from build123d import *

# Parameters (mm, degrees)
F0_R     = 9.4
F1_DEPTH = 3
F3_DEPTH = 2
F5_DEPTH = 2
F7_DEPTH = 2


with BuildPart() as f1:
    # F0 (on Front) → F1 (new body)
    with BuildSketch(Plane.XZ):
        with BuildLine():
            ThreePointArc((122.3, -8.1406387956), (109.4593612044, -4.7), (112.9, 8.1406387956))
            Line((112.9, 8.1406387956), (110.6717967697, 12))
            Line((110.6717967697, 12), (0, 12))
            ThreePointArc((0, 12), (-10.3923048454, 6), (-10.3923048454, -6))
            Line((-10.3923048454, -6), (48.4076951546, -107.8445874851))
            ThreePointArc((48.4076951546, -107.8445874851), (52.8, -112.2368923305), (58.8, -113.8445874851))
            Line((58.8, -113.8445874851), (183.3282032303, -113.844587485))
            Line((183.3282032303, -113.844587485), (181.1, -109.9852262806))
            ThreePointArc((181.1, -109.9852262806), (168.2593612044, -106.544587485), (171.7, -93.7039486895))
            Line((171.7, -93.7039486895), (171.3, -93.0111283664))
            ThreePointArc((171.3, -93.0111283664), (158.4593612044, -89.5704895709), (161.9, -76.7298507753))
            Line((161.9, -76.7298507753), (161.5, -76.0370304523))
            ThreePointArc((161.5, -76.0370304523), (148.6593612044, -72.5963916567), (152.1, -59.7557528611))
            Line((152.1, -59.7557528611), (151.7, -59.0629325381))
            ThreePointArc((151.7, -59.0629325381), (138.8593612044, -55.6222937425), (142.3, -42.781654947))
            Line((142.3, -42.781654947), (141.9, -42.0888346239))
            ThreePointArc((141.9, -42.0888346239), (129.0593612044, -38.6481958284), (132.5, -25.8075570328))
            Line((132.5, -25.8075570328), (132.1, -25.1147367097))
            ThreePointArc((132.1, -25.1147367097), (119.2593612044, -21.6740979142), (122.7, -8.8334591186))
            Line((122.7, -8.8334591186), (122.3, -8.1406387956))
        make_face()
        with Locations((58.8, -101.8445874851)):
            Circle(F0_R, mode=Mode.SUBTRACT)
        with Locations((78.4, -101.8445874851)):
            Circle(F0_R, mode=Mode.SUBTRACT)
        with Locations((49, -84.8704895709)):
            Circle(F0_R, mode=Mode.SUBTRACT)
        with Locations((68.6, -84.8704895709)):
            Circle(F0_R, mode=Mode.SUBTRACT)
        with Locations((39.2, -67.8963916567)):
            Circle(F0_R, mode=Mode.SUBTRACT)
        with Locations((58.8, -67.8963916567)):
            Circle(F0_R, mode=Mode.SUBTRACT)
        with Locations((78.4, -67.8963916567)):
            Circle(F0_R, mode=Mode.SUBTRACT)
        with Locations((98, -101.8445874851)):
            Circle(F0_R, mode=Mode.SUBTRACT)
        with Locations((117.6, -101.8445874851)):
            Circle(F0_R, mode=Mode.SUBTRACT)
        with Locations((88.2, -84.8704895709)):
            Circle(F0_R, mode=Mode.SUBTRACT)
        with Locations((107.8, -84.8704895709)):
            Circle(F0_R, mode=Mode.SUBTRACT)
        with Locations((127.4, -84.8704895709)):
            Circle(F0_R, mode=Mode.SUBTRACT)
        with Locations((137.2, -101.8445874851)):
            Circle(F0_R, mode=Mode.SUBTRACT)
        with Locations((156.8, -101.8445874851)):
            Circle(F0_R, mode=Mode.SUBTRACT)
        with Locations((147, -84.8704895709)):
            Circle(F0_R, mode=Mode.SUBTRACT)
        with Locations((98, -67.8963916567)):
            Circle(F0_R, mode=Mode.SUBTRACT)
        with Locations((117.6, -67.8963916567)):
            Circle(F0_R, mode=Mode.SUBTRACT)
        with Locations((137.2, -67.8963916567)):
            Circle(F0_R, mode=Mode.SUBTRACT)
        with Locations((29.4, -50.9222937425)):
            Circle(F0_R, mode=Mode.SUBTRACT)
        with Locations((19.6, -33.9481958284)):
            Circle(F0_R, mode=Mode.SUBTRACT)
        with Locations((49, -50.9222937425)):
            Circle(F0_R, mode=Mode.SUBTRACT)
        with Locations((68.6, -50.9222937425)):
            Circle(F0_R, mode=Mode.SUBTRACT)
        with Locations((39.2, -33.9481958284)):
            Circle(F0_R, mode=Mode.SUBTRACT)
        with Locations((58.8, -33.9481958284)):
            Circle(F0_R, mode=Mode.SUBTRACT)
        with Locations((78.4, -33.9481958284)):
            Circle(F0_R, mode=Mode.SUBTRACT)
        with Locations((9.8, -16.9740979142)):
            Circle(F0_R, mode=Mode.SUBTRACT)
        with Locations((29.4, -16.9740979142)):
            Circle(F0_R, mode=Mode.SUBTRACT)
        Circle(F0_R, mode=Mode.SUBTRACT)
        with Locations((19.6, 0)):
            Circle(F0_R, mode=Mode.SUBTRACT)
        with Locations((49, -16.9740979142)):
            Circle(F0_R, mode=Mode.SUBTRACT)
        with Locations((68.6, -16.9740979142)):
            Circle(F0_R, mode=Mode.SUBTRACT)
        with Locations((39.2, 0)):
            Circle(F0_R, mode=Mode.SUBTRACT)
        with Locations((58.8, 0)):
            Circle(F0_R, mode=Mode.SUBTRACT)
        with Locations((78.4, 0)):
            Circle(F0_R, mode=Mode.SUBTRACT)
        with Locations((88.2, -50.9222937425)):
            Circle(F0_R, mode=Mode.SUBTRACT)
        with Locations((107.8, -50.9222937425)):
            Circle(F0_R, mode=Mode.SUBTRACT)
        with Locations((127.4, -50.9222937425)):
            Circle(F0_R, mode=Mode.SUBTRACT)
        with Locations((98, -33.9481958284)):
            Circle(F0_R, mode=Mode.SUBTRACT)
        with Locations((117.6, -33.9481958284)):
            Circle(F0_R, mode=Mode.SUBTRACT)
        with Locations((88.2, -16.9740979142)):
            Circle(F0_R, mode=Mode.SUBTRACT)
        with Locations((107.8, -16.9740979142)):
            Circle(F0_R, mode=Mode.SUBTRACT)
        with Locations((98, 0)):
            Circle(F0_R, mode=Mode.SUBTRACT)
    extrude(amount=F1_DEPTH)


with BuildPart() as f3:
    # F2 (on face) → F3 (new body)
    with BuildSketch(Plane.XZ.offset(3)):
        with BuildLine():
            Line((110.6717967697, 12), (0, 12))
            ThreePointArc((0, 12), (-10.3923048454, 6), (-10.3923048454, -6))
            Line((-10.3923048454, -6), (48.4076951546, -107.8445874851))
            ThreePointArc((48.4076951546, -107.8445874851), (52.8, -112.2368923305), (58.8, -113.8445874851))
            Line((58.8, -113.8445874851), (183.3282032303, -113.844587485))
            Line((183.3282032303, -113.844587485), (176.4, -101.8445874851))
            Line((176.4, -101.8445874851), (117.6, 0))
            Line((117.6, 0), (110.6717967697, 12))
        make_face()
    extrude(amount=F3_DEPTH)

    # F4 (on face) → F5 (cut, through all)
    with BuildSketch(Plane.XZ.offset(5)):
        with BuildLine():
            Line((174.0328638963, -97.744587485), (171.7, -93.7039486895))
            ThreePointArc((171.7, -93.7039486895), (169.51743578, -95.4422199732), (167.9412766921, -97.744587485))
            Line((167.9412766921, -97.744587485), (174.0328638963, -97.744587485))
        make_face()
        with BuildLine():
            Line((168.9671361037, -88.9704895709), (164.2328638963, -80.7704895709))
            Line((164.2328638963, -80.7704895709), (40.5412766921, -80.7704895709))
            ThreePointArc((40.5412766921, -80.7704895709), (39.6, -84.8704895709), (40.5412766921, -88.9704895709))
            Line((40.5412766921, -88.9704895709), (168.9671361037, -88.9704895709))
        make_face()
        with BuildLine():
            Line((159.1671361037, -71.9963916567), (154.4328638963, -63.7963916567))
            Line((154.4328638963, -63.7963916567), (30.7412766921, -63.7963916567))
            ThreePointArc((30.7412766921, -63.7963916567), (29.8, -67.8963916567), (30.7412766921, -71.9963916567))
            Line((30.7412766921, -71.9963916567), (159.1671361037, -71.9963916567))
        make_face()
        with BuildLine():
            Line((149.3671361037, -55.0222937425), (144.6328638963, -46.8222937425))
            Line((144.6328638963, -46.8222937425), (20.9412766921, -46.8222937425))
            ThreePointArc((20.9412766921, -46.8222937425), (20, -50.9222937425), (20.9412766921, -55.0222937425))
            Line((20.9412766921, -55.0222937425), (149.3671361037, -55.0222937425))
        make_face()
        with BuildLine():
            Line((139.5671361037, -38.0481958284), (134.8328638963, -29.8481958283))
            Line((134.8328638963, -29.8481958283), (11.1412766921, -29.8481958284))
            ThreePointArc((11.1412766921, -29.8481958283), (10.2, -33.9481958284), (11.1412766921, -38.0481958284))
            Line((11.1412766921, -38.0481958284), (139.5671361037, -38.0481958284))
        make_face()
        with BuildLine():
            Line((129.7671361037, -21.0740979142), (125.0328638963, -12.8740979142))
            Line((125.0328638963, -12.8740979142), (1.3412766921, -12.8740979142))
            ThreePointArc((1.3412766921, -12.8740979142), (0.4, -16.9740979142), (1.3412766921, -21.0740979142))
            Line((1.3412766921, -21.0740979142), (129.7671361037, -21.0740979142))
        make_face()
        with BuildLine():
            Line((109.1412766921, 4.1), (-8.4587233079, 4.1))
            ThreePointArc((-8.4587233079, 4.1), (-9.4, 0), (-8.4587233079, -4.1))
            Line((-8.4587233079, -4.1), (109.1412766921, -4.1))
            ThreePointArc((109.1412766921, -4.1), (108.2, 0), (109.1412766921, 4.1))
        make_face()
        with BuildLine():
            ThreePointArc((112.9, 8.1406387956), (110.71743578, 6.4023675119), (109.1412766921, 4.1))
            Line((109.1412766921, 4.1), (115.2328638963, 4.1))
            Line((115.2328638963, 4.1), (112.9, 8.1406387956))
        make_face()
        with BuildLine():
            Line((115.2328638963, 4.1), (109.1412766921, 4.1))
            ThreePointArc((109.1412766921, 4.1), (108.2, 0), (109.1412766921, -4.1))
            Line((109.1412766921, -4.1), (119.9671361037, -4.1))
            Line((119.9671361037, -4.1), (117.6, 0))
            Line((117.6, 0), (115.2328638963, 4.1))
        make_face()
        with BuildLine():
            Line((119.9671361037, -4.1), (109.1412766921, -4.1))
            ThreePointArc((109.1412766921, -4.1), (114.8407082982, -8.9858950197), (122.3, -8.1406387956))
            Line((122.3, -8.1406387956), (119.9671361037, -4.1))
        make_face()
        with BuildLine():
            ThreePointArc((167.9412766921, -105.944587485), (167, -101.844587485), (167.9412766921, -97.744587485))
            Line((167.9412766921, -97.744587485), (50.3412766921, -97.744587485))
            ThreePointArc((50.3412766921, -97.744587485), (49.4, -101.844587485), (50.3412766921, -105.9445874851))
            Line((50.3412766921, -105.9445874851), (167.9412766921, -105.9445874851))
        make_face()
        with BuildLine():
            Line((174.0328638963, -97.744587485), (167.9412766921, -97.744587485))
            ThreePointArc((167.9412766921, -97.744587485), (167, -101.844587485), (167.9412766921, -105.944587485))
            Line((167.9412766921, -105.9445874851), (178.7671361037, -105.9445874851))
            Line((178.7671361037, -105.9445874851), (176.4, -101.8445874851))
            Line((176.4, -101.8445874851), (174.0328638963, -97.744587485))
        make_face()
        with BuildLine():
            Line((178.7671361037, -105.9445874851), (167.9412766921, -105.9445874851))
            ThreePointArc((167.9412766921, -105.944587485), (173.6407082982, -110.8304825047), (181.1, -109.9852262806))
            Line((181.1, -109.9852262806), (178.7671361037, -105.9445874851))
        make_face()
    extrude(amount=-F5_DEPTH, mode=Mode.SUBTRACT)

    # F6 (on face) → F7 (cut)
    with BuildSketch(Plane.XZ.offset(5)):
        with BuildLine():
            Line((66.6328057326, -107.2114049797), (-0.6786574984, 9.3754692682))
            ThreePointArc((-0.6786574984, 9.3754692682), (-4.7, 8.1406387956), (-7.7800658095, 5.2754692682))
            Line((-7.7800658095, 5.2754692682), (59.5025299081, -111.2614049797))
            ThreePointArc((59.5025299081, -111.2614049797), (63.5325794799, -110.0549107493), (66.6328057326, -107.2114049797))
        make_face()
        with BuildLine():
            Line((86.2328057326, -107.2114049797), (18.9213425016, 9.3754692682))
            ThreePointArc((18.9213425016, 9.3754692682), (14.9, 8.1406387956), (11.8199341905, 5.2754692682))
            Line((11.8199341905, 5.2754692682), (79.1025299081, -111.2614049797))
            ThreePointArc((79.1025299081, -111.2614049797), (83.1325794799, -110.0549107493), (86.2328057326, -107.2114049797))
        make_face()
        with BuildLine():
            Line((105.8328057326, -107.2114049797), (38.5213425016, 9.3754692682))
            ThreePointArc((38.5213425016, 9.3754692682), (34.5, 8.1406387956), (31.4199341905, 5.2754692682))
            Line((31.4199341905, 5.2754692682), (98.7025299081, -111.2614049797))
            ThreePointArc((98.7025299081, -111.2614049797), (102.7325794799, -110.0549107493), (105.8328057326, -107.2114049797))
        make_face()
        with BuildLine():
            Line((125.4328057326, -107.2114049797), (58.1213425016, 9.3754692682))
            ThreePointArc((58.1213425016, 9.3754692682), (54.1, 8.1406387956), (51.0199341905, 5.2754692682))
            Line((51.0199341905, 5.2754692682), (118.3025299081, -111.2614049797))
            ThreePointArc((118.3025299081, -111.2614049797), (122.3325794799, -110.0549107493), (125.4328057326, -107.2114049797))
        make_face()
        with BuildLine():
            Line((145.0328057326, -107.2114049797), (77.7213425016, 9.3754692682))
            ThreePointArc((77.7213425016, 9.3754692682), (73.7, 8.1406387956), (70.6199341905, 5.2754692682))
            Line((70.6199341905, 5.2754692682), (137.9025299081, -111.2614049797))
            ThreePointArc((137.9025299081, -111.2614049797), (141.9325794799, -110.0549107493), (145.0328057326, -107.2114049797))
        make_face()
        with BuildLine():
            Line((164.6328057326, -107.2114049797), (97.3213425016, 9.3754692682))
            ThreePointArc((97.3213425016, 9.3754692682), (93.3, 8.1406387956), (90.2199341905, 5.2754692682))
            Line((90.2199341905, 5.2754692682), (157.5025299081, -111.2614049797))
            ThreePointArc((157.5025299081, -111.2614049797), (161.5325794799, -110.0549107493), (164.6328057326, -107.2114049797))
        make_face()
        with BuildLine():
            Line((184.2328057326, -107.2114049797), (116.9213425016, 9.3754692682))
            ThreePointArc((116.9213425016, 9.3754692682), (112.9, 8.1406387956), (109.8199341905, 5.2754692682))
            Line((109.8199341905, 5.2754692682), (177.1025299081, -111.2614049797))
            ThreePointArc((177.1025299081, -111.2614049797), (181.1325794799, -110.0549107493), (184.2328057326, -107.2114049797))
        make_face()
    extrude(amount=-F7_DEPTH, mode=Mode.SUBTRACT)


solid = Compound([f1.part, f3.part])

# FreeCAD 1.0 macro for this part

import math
import FreeCAD as App
import Part
import Sketcher
Q = App.Units.Quantity

doc = App.newDocument("Part")
body = doc.addObject("PartDesign::Body", "Body")

# Sketch on XZ plane
sketch1 = body.newObject("Sketcher::SketchObject", "Sketch")
sketch1.AttachmentSupport = (doc.getObject("XZ_Plane"), [""])
sketch1.MapMode = "FlatFace"
sketch1.addGeometry([
    Part.ArcOfCircle(Part.Circle(App.Vector(117.6, 0, 0), App.Vector(0, 0, 1), 9.4), math.radians(120), math.radians(300)),  # 0
    Part.LineSegment(App.Vector(112.9, 8.1, 0), App.Vector(110.7, 12, 0)),  # 1
    Part.LineSegment(App.Vector(110.7, 12, 0), App.Vector(0, 12, 0)),  # 2
    Part.ArcOfCircle(Part.Circle(App.Vector(0, 0, 0), App.Vector(0, 0, 1), 12), math.radians(90), math.radians(210)),  # 3
    Part.LineSegment(App.Vector(-10.4, -6, 0), App.Vector(48.4, -107.8, 0)),  # 4
    Part.ArcOfCircle(Part.Circle(App.Vector(58.8, -101.8, 0), App.Vector(0, 0, 1), 12), math.radians(-150), math.radians(-90)),  # 5
    Part.LineSegment(App.Vector(58.8, -113.8, 0), App.Vector(183.3, -113.8, 0)),  # 6
    Part.LineSegment(App.Vector(183.3, -113.8, 0), App.Vector(181.1, -110, 0)),  # 7
    Part.ArcOfCircle(Part.Circle(App.Vector(176.4, -101.8, 0), App.Vector(0, 0, 1), 9.4), math.radians(120), math.radians(300)),  # 8
    Part.LineSegment(App.Vector(171.7, -93.7, 0), App.Vector(171.3, -93, 0)),  # 9
    Part.ArcOfCircle(Part.Circle(App.Vector(166.6, -84.9, 0), App.Vector(0, 0, 1), 9.4), math.radians(120), math.radians(300)),  # 10
    Part.LineSegment(App.Vector(161.9, -76.7, 0), App.Vector(161.5, -76, 0)),  # 11
    Part.ArcOfCircle(Part.Circle(App.Vector(156.8, -67.9, 0), App.Vector(0, 0, 1), 9.4), math.radians(120), math.radians(300)),  # 12
    Part.LineSegment(App.Vector(152.1, -59.8, 0), App.Vector(151.7, -59.1, 0)),  # 13
    Part.ArcOfCircle(Part.Circle(App.Vector(147, -50.9, 0), App.Vector(0, 0, 1), 9.4), math.radians(120), math.radians(300)),  # 14
    Part.LineSegment(App.Vector(142.3, -42.8, 0), App.Vector(141.9, -42.1, 0)),  # 15
    Part.ArcOfCircle(Part.Circle(App.Vector(137.2, -33.9, 0), App.Vector(0, 0, 1), 9.4), math.radians(120), math.radians(300)),  # 16
    Part.LineSegment(App.Vector(132.5, -25.8, 0), App.Vector(132.1, -25.1, 0)),  # 17
    Part.ArcOfCircle(Part.Circle(App.Vector(127.4, -17, 0), App.Vector(0, 0, 1), 9.4), math.radians(120), math.radians(300)),  # 18
    Part.LineSegment(App.Vector(122.7, -8.8, 0), App.Vector(122.3, -8.1, 0)),  # 19
    Part.Circle(App.Vector(58.8, -101.8, 0), App.Vector(0, 0, 1), 9.4),  # 20
    Part.Circle(App.Vector(49, -84.9, 0), App.Vector(0, 0, 1), 9.4),  # 21
    Part.Circle(App.Vector(68.6, -84.9, 0), App.Vector(0, 0, 1), 9.4),  # 22
    Part.Circle(App.Vector(39.2, -67.9, 0), App.Vector(0, 0, 1), 9.4),  # 23
    Part.Circle(App.Vector(58.8, -67.9, 0), App.Vector(0, 0, 1), 9.4),  # 24
    Part.Circle(App.Vector(78.4, -101.8, 0), App.Vector(0, 0, 1), 9.4),  # 25
    Part.Circle(App.Vector(98, -101.8, 0), App.Vector(0, 0, 1), 9.4),  # 26
    Part.Circle(App.Vector(117.6, -101.8, 0), App.Vector(0, 0, 1), 9.4),  # 27
    Part.Circle(App.Vector(88.2, -84.9, 0), App.Vector(0, 0, 1), 9.4),  # 28
    Part.Circle(App.Vector(107.8, -84.9, 0), App.Vector(0, 0, 1), 9.4),  # 29
    Part.Circle(App.Vector(137.2, -101.8, 0), App.Vector(0, 0, 1), 9.4),  # 30
    Part.Circle(App.Vector(156.8, -101.8, 0), App.Vector(0, 0, 1), 9.4),  # 31
    Part.Circle(App.Vector(127.4, -84.9, 0), App.Vector(0, 0, 1), 9.4),  # 32
    Part.Circle(App.Vector(147, -84.9, 0), App.Vector(0, 0, 1), 9.4),  # 33
    Part.Circle(App.Vector(78.4, -67.9, 0), App.Vector(0, 0, 1), 9.4),  # 34
    Part.Circle(App.Vector(98, -67.9, 0), App.Vector(0, 0, 1), 9.4),  # 35
    Part.Circle(App.Vector(117.6, -67.9, 0), App.Vector(0, 0, 1), 9.4),  # 36
    Part.Circle(App.Vector(137.2, -67.9, 0), App.Vector(0, 0, 1), 9.4),  # 37
    Part.Circle(App.Vector(29.4, -50.9, 0), App.Vector(0, 0, 1), 9.4),  # 38
    Part.Circle(App.Vector(19.6, -33.9, 0), App.Vector(0, 0, 1), 9.4),  # 39
    Part.Circle(App.Vector(49, -50.9, 0), App.Vector(0, 0, 1), 9.4),  # 40
    Part.Circle(App.Vector(68.6, -50.9, 0), App.Vector(0, 0, 1), 9.4),  # 41
    Part.Circle(App.Vector(39.2, -33.9, 0), App.Vector(0, 0, 1), 9.4),  # 42
    Part.Circle(App.Vector(58.8, -33.9, 0), App.Vector(0, 0, 1), 9.4),  # 43
    Part.Circle(App.Vector(9.8, -17, 0), App.Vector(0, 0, 1), 9.4),  # 44
    Part.Circle(App.Vector(29.4, -17, 0), App.Vector(0, 0, 1), 9.4),  # 45
    Part.Circle(App.Vector(0, 0, 0), App.Vector(0, 0, 1), 9.4),  # 46
    Part.Circle(App.Vector(19.6, 0, 0), App.Vector(0, 0, 1), 9.4),  # 47
    Part.Circle(App.Vector(49, -17, 0), App.Vector(0, 0, 1), 9.4),  # 48
    Part.Circle(App.Vector(68.6, -17, 0), App.Vector(0, 0, 1), 9.4),  # 49
    Part.Circle(App.Vector(39.2, 0, 0), App.Vector(0, 0, 1), 9.4),  # 50
    Part.Circle(App.Vector(58.8, 0, 0), App.Vector(0, 0, 1), 9.4),  # 51
    Part.Circle(App.Vector(88.2, -50.9, 0), App.Vector(0, 0, 1), 9.4),  # 52
    Part.Circle(App.Vector(107.8, -50.9, 0), App.Vector(0, 0, 1), 9.4),  # 53
    Part.Circle(App.Vector(78.4, -33.9, 0), App.Vector(0, 0, 1), 9.4),  # 54
    Part.Circle(App.Vector(98, -33.9, 0), App.Vector(0, 0, 1), 9.4),  # 55
    Part.Circle(App.Vector(117.6, -33.9, 0), App.Vector(0, 0, 1), 9.4),  # 56
    Part.Circle(App.Vector(127.4, -50.9, 0), App.Vector(0, 0, 1), 9.4),  # 57
    Part.Circle(App.Vector(88.2, -17, 0), App.Vector(0, 0, 1), 9.4),  # 58
    Part.Circle(App.Vector(107.8, -17, 0), App.Vector(0, 0, 1), 9.4),  # 59
    Part.Circle(App.Vector(78.4, 0, 0), App.Vector(0, 0, 1), 9.4),  # 60
    Part.Circle(App.Vector(98, 0, 0), App.Vector(0, 0, 1), 9.4),  # 61
], False)
sketch1.addConstraint([
    Sketcher.Constraint("Coincident", 0, 1, 1, 1),
    Sketcher.Constraint("Coincident", 1, 2, 2, 1),
    Sketcher.Constraint("Tangent", 2, 2, 3, 1),
    Sketcher.Constraint("Tangent", 3, 2, 4, 1),
    Sketcher.Constraint("Tangent", 4, 2, 5, 1),
    Sketcher.Constraint("Tangent", 5, 2, 6, 1),
    Sketcher.Constraint("Coincident", 6, 2, 7, 1),
    Sketcher.Constraint("Coincident", 7, 2, 8, 2),
    Sketcher.Constraint("Coincident", 8, 1, 9, 1),
    Sketcher.Constraint("Coincident", 9, 2, 10, 2),
    Sketcher.Constraint("Coincident", 10, 1, 11, 1),
    Sketcher.Constraint("Coincident", 11, 2, 12, 2),
    Sketcher.Constraint("Coincident", 12, 1, 13, 1),
    Sketcher.Constraint("Coincident", 13, 2, 14, 2),
    Sketcher.Constraint("Coincident", 14, 1, 15, 1),
    Sketcher.Constraint("Coincident", 15, 2, 16, 2),
    Sketcher.Constraint("Coincident", 16, 1, 17, 1),
    Sketcher.Constraint("Coincident", 17, 2, 18, 2),
    Sketcher.Constraint("Coincident", 18, 1, 19, 1),
    Sketcher.Constraint("Coincident", 19, 2, 0, 2),
    Sketcher.Constraint("Horizontal", 2),
    Sketcher.Constraint("Horizontal", 6),
    Sketcher.Constraint("Coincident", 3, 3, -1, 1),
    Sketcher.Constraint("Coincident", 46, 3, -1, 1),
    Sketcher.Constraint("Coincident", 20, 3, 5, 3),
    Sketcher.Constraint("Equal", 3, 5),
    Sketcher.Constraint("Equal", 0, 8),
    Sketcher.Constraint("Equal", 8, 10),
    Sketcher.Constraint("Equal", 10, 12),
    Sketcher.Constraint("Equal", 12, 14),
    Sketcher.Constraint("Equal", 14, 16),
    Sketcher.Constraint("Equal", 16, 18),
    Sketcher.Constraint("Equal", 18, 20),
    Sketcher.Constraint("Equal", 20, 21),
    Sketcher.Constraint("Equal", 21, 22),
    Sketcher.Constraint("Equal", 22, 23),
    Sketcher.Constraint("Equal", 23, 24),
    Sketcher.Constraint("Equal", 24, 25),
    Sketcher.Constraint("Equal", 25, 26),
    Sketcher.Constraint("Equal", 26, 27),
    Sketcher.Constraint("Equal", 27, 28),
    Sketcher.Constraint("Equal", 28, 29),
    Sketcher.Constraint("Equal", 29, 30),
    Sketcher.Constraint("Equal", 30, 31),
    Sketcher.Constraint("Equal", 31, 32),
    Sketcher.Constraint("Equal", 32, 33),
    Sketcher.Constraint("Equal", 33, 34),
    Sketcher.Constraint("Equal", 34, 35),
    Sketcher.Constraint("Equal", 35, 36),
    Sketcher.Constraint("Equal", 36, 37),
    Sketcher.Constraint("Equal", 37, 38),
    Sketcher.Constraint("Equal", 38, 39),
    Sketcher.Constraint("Equal", 39, 40),
    Sketcher.Constraint("Equal", 40, 41),
    Sketcher.Constraint("Equal", 41, 42),
    Sketcher.Constraint("Equal", 42, 43),
    Sketcher.Constraint("Equal", 43, 44),
    Sketcher.Constraint("Equal", 44, 45),
    Sketcher.Constraint("Equal", 45, 46),
    Sketcher.Constraint("Equal", 46, 47),
    Sketcher.Constraint("Equal", 47, 48),
    Sketcher.Constraint("Equal", 48, 49),
    Sketcher.Constraint("Equal", 49, 50),
    Sketcher.Constraint("Equal", 50, 51),
    Sketcher.Constraint("Equal", 51, 52),
    Sketcher.Constraint("Equal", 52, 53),
    Sketcher.Constraint("Equal", 53, 54),
    Sketcher.Constraint("Equal", 54, 55),
    Sketcher.Constraint("Equal", 55, 56),
    Sketcher.Constraint("Equal", 56, 57),
    Sketcher.Constraint("Equal", 57, 58),
    Sketcher.Constraint("Equal", 58, 59),
    Sketcher.Constraint("Equal", 59, 60),
    Sketcher.Constraint("Equal", 60, 61),
    Sketcher.Constraint("PointOnObject", 0, 3, -1),
    Sketcher.Constraint("PointOnObject", 47, 3, -1),
    Sketcher.Constraint("PointOnObject", 50, 3, -1),
    Sketcher.Constraint("PointOnObject", 51, 3, -1),
    Sketcher.Constraint("PointOnObject", 60, 3, -1),
    Sketcher.Constraint("PointOnObject", 61, 3, -1),
    Sketcher.Constraint("Parallel", 1, 4),
    Sketcher.Constraint("Parallel", 4, 7),
    Sketcher.Constraint("Parallel", 7, 9),
    Sketcher.Constraint("Parallel", 9, 11),
    Sketcher.Constraint("Parallel", 11, 13),
    Sketcher.Constraint("Parallel", 13, 15),
    Sketcher.Constraint("Parallel", 15, 17),
    Sketcher.Constraint("Parallel", 17, 19),
    Sketcher.Constraint("Horizontal", 5, 3, 8, 3),
    Sketcher.Constraint("Horizontal", 10, 3, 21, 3),
    Sketcher.Constraint("Horizontal", 21, 3, 22, 3),
    Sketcher.Constraint("Horizontal", 12, 3, 23, 3),
    Sketcher.Constraint("Horizontal", 23, 3, 24, 3),
    Sketcher.Constraint("Horizontal", 20, 3, 25, 3),
    Sketcher.Constraint("Horizontal", 25, 3, 26, 3),
    Sketcher.Constraint("Horizontal", 26, 3, 27, 3),
    Sketcher.Constraint("Horizontal", 22, 3, 28, 3),
    Sketcher.Constraint("Horizontal", 28, 3, 29, 3),
    Sketcher.Constraint("Horizontal", 27, 3, 30, 3),
    Sketcher.Constraint("Horizontal", 30, 3, 31, 3),
    Sketcher.Constraint("Horizontal", 29, 3, 32, 3),
    Sketcher.Constraint("Horizontal", 32, 3, 33, 3),
    Sketcher.Constraint("Horizontal", 24, 3, 34, 3),
    Sketcher.Constraint("Horizontal", 34, 3, 35, 3),
    Sketcher.Constraint("Horizontal", 35, 3, 36, 3),
    Sketcher.Constraint("Horizontal", 36, 3, 37, 3),
    Sketcher.Constraint("Horizontal", 14, 3, 38, 3),
    Sketcher.Constraint("Horizontal", 16, 3, 39, 3),
    Sketcher.Constraint("Horizontal", 38, 3, 40, 3),
    Sketcher.Constraint("Horizontal", 40, 3, 41, 3),
    Sketcher.Constraint("Horizontal", 39, 3, 42, 3),
    Sketcher.Constraint("Horizontal", 42, 3, 43, 3),
    Sketcher.Constraint("Horizontal", 18, 3, 44, 3),
    Sketcher.Constraint("Horizontal", 44, 3, 45, 3),
    Sketcher.Constraint("Horizontal", 45, 3, 48, 3),
    Sketcher.Constraint("Horizontal", 48, 3, 49, 3),
    Sketcher.Constraint("Horizontal", 41, 3, 52, 3),
    Sketcher.Constraint("Horizontal", 52, 3, 53, 3),
    Sketcher.Constraint("Horizontal", 43, 3, 54, 3),
    Sketcher.Constraint("Horizontal", 54, 3, 55, 3),
    Sketcher.Constraint("Horizontal", 55, 3, 56, 3),
    Sketcher.Constraint("Horizontal", 53, 3, 57, 3),
    Sketcher.Constraint("Horizontal", 49, 3, 58, 3),
    Sketcher.Constraint("Horizontal", 58, 3, 59, 3),
    Sketcher.Constraint("Vertical", 20, 3, 24, 3),
    Sketcher.Constraint("Vertical", 0, 3, 27, 3),
    Sketcher.Constraint("Vertical", 16, 3, 30, 3),
    Sketcher.Constraint("Vertical", 12, 3, 31, 3),
    Sketcher.Constraint("Vertical", 18, 3, 32, 3),
    Sketcher.Constraint("Vertical", 14, 3, 33, 3),
    Sketcher.Constraint("Vertical", 25, 3, 34, 3),
    Sketcher.Constraint("Vertical", 26, 3, 35, 3),
    Sketcher.Constraint("Vertical", 27, 3, 36, 3),
    Sketcher.Constraint("Vertical", 30, 3, 37, 3),
    Sketcher.Constraint("Vertical", 21, 3, 40, 3),
    Sketcher.Constraint("Vertical", 22, 3, 41, 3),
    Sketcher.Constraint("Vertical", 23, 3, 42, 3),
    Sketcher.Constraint("Vertical", 24, 3, 43, 3),
    Sketcher.Constraint("Vertical", 38, 3, 45, 3),
    Sketcher.Constraint("Vertical", 39, 3, 47, 3),
    Sketcher.Constraint("Vertical", 40, 3, 48, 3),
    Sketcher.Constraint("Vertical", 41, 3, 49, 3),
    Sketcher.Constraint("Vertical", 42, 3, 50, 3),
    Sketcher.Constraint("Vertical", 43, 3, 51, 3),
    Sketcher.Constraint("Vertical", 28, 3, 52, 3),
    Sketcher.Constraint("Vertical", 29, 3, 53, 3),
    Sketcher.Constraint("Vertical", 34, 3, 54, 3),
    Sketcher.Constraint("Vertical", 35, 3, 55, 3),
    Sketcher.Constraint("Vertical", 36, 3, 56, 3),
    Sketcher.Constraint("Vertical", 32, 3, 57, 3),
    Sketcher.Constraint("Vertical", 52, 3, 58, 3),
    Sketcher.Constraint("Vertical", 53, 3, 59, 3),
    Sketcher.Constraint("Vertical", 54, 3, 60, 3),
    Sketcher.Constraint("Vertical", 55, 3, 61, 3),
    Sketcher.Constraint("Equal", 1, 7),
    Sketcher.Constraint("Equal", 9, 11),
    Sketcher.Constraint("Equal", 11, 13),
    Sketcher.Constraint("Equal", 13, 15),
    Sketcher.Constraint("Equal", 15, 17),
    Sketcher.Constraint("Equal", 17, 19),
    Sketcher.Constraint("Radius", 3, 12.0),
    Sketcher.Constraint("Diameter", 20, 18.8),
    Sketcher.Constraint("Angle", 1, Q("120 deg")),
    Sketcher.Constraint("DistanceX", -1, 1, 14, 3, 147.0),
    Sketcher.Constraint("DistanceX", -1, 1, 21, 3, 49.0),
    Sketcher.Constraint("DistanceX", -1, 1, 26, 3, 98.0),
    Sketcher.Constraint("Distance", 4, 117.6),
    Sketcher.Constraint("Distance", 9, 0.8),
    Sketcher.Constraint("DistanceX", -1, 1, 0, 3, 117.6),
    Sketcher.Constraint("DistanceX", -1, 1, 10, 3, 166.6),
    Sketcher.Constraint("DistanceX", -1, 1, 12, 3, 156.8),
    Sketcher.Constraint("DistanceX", -1, 1, 16, 3, 137.2),
    Sketcher.Constraint("DistanceX", -1, 1, 18, 3, 127.4),
    Sketcher.Constraint("DistanceX", -1, 1, 22, 3, 68.6),
    Sketcher.Constraint("DistanceX", -1, 1, 23, 3, 39.2),
    Sketcher.Constraint("DistanceX", -1, 1, 25, 3, 78.4),
    Sketcher.Constraint("DistanceX", -1, 1, 28, 3, 88.2),
    Sketcher.Constraint("DistanceX", -1, 1, 29, 3, 107.8),
    Sketcher.Constraint("DistanceX", -1, 1, 38, 3, 29.4),
    Sketcher.Constraint("DistanceX", -1, 1, 39, 3, 19.6),
    Sketcher.Constraint("DistanceX", -1, 1, 44, 3, 9.8),
    Sketcher.Constraint("DistanceX", -1, 1, 0, 1, 112.9),
    Sketcher.Constraint("DistanceX", -1, 1, 8, 1, 171.7),
    Sketcher.Constraint("DistanceX", -1, 1, 10, 1, 161.9),
    Sketcher.Constraint("DistanceX", -1, 1, 12, 1, 152.1),
    Sketcher.Constraint("DistanceX", -1, 1, 14, 1, 142.3),
    Sketcher.Constraint("DistanceX", -1, 1, 16, 1, 132.5),
    Sketcher.Constraint("DistanceX", -1, 1, 18, 1, 122.7),
])
pad1 = body.newObject("PartDesign::Pad", "Pad")
pad1.Profile = sketch1
pad1.Length = 3
body2 = doc.addObject("PartDesign::Body", "Body001")
body2.AllowCompound = True

# Sketch on XZ plane
sketch2 = body2.newObject("Sketcher::SketchObject", "Sketch001")
sketch2.AttachmentSupport = (doc.getObject("XZ_Plane001"), [""])
sketch2.MapMode = "FlatFace"
sketch2.AttachmentOffset = App.Placement(App.Vector(0, 0, 3), App.Rotation())
sketch2.addGeometry([
    Part.LineSegment(App.Vector(111, 12, 0), App.Vector(0, 12, 0)),  # 0
    Part.ArcOfCircle(Part.Circle(App.Vector(0, 0, 0), App.Vector(0, 0, 1), 12), math.radians(90), math.radians(210)),  # 1
    Part.LineSegment(App.Vector(-10, -6, 0), App.Vector(48, -108, 0)),  # 2
    Part.ArcOfCircle(Part.Circle(App.Vector(59, -102, 0), App.Vector(0, 0, 1), 12), math.radians(-150), math.radians(-90)),  # 3
    Part.LineSegment(App.Vector(59, -114, 0), App.Vector(183, -114, 0)),  # 4
    Part.LineSegment(App.Vector(183, -114, 0), App.Vector(176, -102, 0)),  # 5
    Part.LineSegment(App.Vector(176, -102, 0), App.Vector(118, 0, 0)),  # 6
    Part.LineSegment(App.Vector(118, 0, 0), App.Vector(111, 12, 0)),  # 7
], False)
sketch2.addConstraint([
    Sketcher.Constraint("Tangent", 0, 2, 1, 1),
    Sketcher.Constraint("Tangent", 1, 2, 2, 1),
    Sketcher.Constraint("Tangent", 2, 2, 3, 1),
    Sketcher.Constraint("Tangent", 3, 2, 4, 1),
    Sketcher.Constraint("Coincident", 4, 2, 5, 1),
    Sketcher.Constraint("Coincident", 5, 2, 6, 1),
    Sketcher.Constraint("Coincident", 6, 2, 7, 1),
    Sketcher.Constraint("Coincident", 7, 2, 0, 1),
    Sketcher.Constraint("Horizontal", 0),
    Sketcher.Constraint("Horizontal", 4),
    Sketcher.Constraint("Coincident", 1, 3, -1, 1),
    Sketcher.Constraint("Equal", 1, 3),
    Sketcher.Constraint("PointOnObject", 6, 2, -1),
    Sketcher.Constraint("Parallel", 2, 5),
    Sketcher.Constraint("Parallel", 5, 6),
    Sketcher.Constraint("Parallel", 6, 7),
    Sketcher.Constraint("Horizontal", 3, 3, 5, 2),
    Sketcher.Constraint("Radius", 1, 12.0),
    Sketcher.Constraint("Angle", 2, Q("-60 deg")),
    Sketcher.Constraint("Distance", 2, 117.6),
    Sketcher.Constraint("DistanceX", -1, 1, 5, 2, 176.4),
])
pad2 = body2.newObject("PartDesign::Pad", "Pad001")
pad2.Profile = sketch2
pad2.Length = 2

# Sketch on XZ plane
sketch3 = body2.newObject("Sketcher::SketchObject", "Sketch002")
sketch3.AttachmentSupport = (doc.getObject("XZ_Plane001"), [""])
sketch3.MapMode = "FlatFace"
sketch3.AttachmentOffset = App.Placement(App.Vector(0, 0, 5), App.Rotation())
sketch3.addGeometry([
    Part.LineSegment(App.Vector(174, -97.7, 0), App.Vector(171.7, -93.7, 0)),  # 0
    Part.ArcOfCircle(Part.Circle(App.Vector(176.4, -101.8, 0), App.Vector(0, 0, 1), 9.4), math.radians(120), math.radians(154)),  # 1
    Part.LineSegment(App.Vector(167.9, -97.7, 0), App.Vector(50.3, -97.7, 0)),  # 2
    Part.ArcOfCircle(Part.Circle(App.Vector(58.8, -101.8, 0), App.Vector(0, 0, 1), 9.4), math.radians(154), math.radians(206)),  # 3
    Part.LineSegment(App.Vector(50.3, -105.9, 0), App.Vector(167.9, -105.9, 0)),  # 4
    Part.ArcOfCircle(Part.Circle(App.Vector(176.4, -101.8, 0), App.Vector(0, 0, 1), 9.4), math.radians(-154), math.radians(-60)),  # 5
    Part.LineSegment(App.Vector(181.1, -110, 0), App.Vector(176.4, -101.8, 0)),  # 6
    Part.LineSegment(App.Vector(176.4, -101.8, 0), App.Vector(174, -97.7, 0)),  # 7
    Part.LineSegment(App.Vector(169, -89, 0), App.Vector(164.2, -80.8, 0)),  # 8
    Part.LineSegment(App.Vector(164.2, -80.8, 0), App.Vector(40.5, -80.8, 0)),  # 9
    Part.ArcOfCircle(Part.Circle(App.Vector(49, -84.9, 0), App.Vector(0, 0, 1), 9.4), math.radians(154), math.radians(206)),  # 10
    Part.LineSegment(App.Vector(40.5, -89, 0), App.Vector(169, -89, 0)),  # 11
    Part.LineSegment(App.Vector(159.2, -72, 0), App.Vector(154.4, -63.8, 0)),  # 12
    Part.LineSegment(App.Vector(154.4, -63.8, 0), App.Vector(30.7, -63.8, 0)),  # 13
    Part.ArcOfCircle(Part.Circle(App.Vector(39.2, -67.9, 0), App.Vector(0, 0, 1), 9.4), math.radians(154), math.radians(206)),  # 14
    Part.LineSegment(App.Vector(30.7, -72, 0), App.Vector(159.2, -72, 0)),  # 15
    Part.LineSegment(App.Vector(149.4, -55, 0), App.Vector(144.6, -46.8, 0)),  # 16
    Part.LineSegment(App.Vector(144.6, -46.8, 0), App.Vector(20.9, -46.8, 0)),  # 17
    Part.ArcOfCircle(Part.Circle(App.Vector(29.4, -50.9, 0), App.Vector(0, 0, 1), 9.4), math.radians(154), math.radians(206)),  # 18
    Part.LineSegment(App.Vector(20.9, -55, 0), App.Vector(149.4, -55, 0)),  # 19
    Part.LineSegment(App.Vector(139.6, -38, 0), App.Vector(134.8, -29.8, 0)),  # 20
    Part.LineSegment(App.Vector(134.8, -29.8, 0), App.Vector(11.1, -29.8, 0)),  # 21
    Part.ArcOfCircle(Part.Circle(App.Vector(19.6, -33.9, 0), App.Vector(0, 0, 1), 9.4), math.radians(154), math.radians(206)),  # 22
    Part.LineSegment(App.Vector(11.1, -38, 0), App.Vector(139.6, -38, 0)),  # 23
    Part.LineSegment(App.Vector(129.8, -21.1, 0), App.Vector(125, -12.9, 0)),  # 24
    Part.LineSegment(App.Vector(125, -12.9, 0), App.Vector(1.3, -12.9, 0)),  # 25
    Part.ArcOfCircle(Part.Circle(App.Vector(9.8, -17, 0), App.Vector(0, 0, 1), 9.4), math.radians(154), math.radians(206)),  # 26
    Part.LineSegment(App.Vector(1.3, -21.1, 0), App.Vector(129.8, -21.1, 0)),  # 27
    Part.LineSegment(App.Vector(109.1, 4.1, 0), App.Vector(-8.5, 4.1, 0)),  # 28
    Part.ArcOfCircle(Part.Circle(App.Vector(0, 0, 0), App.Vector(0, 0, 1), 9.4), math.radians(154), math.radians(206)),  # 29
    Part.LineSegment(App.Vector(-8.5, -4.1, 0), App.Vector(109.1, -4.1, 0)),  # 30
    Part.ArcOfCircle(Part.Circle(App.Vector(117.6, 0, 0), App.Vector(0, 0, 1), 9.4), math.radians(-154), math.radians(-60)),  # 31
    Part.LineSegment(App.Vector(122.3, -8.1, 0), App.Vector(120, -4.1, 0)),  # 32
    Part.LineSegment(App.Vector(120, -4.1, 0), App.Vector(115.2, 4.1, 0)),  # 33
    Part.LineSegment(App.Vector(115.2, 4.1, 0), App.Vector(112.9, 8.1, 0)),  # 34
    Part.ArcOfCircle(Part.Circle(App.Vector(117.6, 0, 0), App.Vector(0, 0, 1), 9.4), math.radians(120), math.radians(154)),  # 35
], False)
sketch3.addConstraint([
    Sketcher.Constraint("Coincident", 0, 2, 1, 1),
    Sketcher.Constraint("Coincident", 1, 2, 2, 1),
    Sketcher.Constraint("Coincident", 2, 2, 3, 1),
    Sketcher.Constraint("Coincident", 3, 2, 4, 1),
    Sketcher.Constraint("Coincident", 4, 2, 5, 1),
    Sketcher.Constraint("Coincident", 5, 2, 6, 1),
    Sketcher.Constraint("Coincident", 6, 2, 7, 1),
    Sketcher.Constraint("Coincident", 7, 2, 0, 1),
    Sketcher.Constraint("Coincident", 8, 2, 9, 1),
    Sketcher.Constraint("Coincident", 9, 2, 10, 1),
    Sketcher.Constraint("Coincident", 10, 2, 11, 1),
    Sketcher.Constraint("Coincident", 11, 2, 8, 1),
    Sketcher.Constraint("Coincident", 12, 2, 13, 1),
    Sketcher.Constraint("Coincident", 13, 2, 14, 1),
    Sketcher.Constraint("Coincident", 14, 2, 15, 1),
    Sketcher.Constraint("Coincident", 15, 2, 12, 1),
    Sketcher.Constraint("Coincident", 16, 2, 17, 1),
    Sketcher.Constraint("Coincident", 17, 2, 18, 1),
    Sketcher.Constraint("Coincident", 18, 2, 19, 1),
    Sketcher.Constraint("Coincident", 19, 2, 16, 1),
    Sketcher.Constraint("Coincident", 20, 2, 21, 1),
    Sketcher.Constraint("Coincident", 21, 2, 22, 1),
    Sketcher.Constraint("Coincident", 22, 2, 23, 1),
    Sketcher.Constraint("Coincident", 23, 2, 20, 1),
    Sketcher.Constraint("Coincident", 24, 2, 25, 1),
    Sketcher.Constraint("Coincident", 25, 2, 26, 1),
    Sketcher.Constraint("Coincident", 26, 2, 27, 1),
    Sketcher.Constraint("Coincident", 27, 2, 24, 1),
    Sketcher.Constraint("Coincident", 28, 2, 29, 1),
    Sketcher.Constraint("Coincident", 29, 2, 30, 1),
    Sketcher.Constraint("Coincident", 30, 2, 31, 1),
    Sketcher.Constraint("Coincident", 31, 2, 32, 1),
    Sketcher.Constraint("Coincident", 32, 2, 33, 1),
    Sketcher.Constraint("Coincident", 33, 2, 34, 1),
    Sketcher.Constraint("Coincident", 34, 2, 35, 1),
    Sketcher.Constraint("Coincident", 35, 2, 28, 1),
    Sketcher.Constraint("Horizontal", 2),
    Sketcher.Constraint("Horizontal", 4),
    Sketcher.Constraint("Horizontal", 9),
    Sketcher.Constraint("Horizontal", 11),
    Sketcher.Constraint("Horizontal", 13),
    Sketcher.Constraint("Horizontal", 15),
    Sketcher.Constraint("Horizontal", 17),
    Sketcher.Constraint("Horizontal", 19),
    Sketcher.Constraint("Horizontal", 21),
    Sketcher.Constraint("Horizontal", 23),
    Sketcher.Constraint("Horizontal", 25),
    Sketcher.Constraint("Horizontal", 27),
    Sketcher.Constraint("Horizontal", 28),
    Sketcher.Constraint("Horizontal", 30),
    Sketcher.Constraint("Coincident", 29, 3, -1, 1),
    Sketcher.Constraint("Coincident", 5, 3, 1, 3),
    Sketcher.Constraint("Coincident", 35, 3, 31, 3),
    Sketcher.Constraint("Coincident", 6, 2, 1, 3),
    Sketcher.Constraint("Equal", 1, 3),
    Sketcher.Constraint("Equal", 3, 5),
    Sketcher.Constraint("Equal", 5, 10),
    Sketcher.Constraint("Equal", 10, 14),
    Sketcher.Constraint("Equal", 14, 18),
    Sketcher.Constraint("Equal", 18, 22),
    Sketcher.Constraint("Equal", 22, 26),
    Sketcher.Constraint("Equal", 26, 29),
    Sketcher.Constraint("Equal", 29, 31),
    Sketcher.Constraint("Equal", 31, 35),
    Sketcher.Constraint("Symmetric", 30, 2, 35, 2, -1),
    Sketcher.Constraint("Parallel", 0, 6),
    Sketcher.Constraint("Parallel", 6, 7),
    Sketcher.Constraint("Parallel", 7, 8),
    Sketcher.Constraint("Parallel", 8, 12),
    Sketcher.Constraint("Parallel", 12, 16),
    Sketcher.Constraint("Parallel", 16, 20),
    Sketcher.Constraint("Parallel", 20, 24),
    Sketcher.Constraint("Parallel", 24, 32),
    Sketcher.Constraint("Parallel", 32, 33),
    Sketcher.Constraint("Parallel", 33, 34),
    Sketcher.Constraint("Horizontal", 1, 3, 3, 3),
    Sketcher.Constraint("Horizontal", 2, 2, 7, 2),
    Sketcher.Constraint("Horizontal", 30, 2, 32, 2),
    Sketcher.Constraint("Horizontal", 28, 2, 33, 2),
    Sketcher.Constraint("Vertical", 2, 2, 3, 2),
    Sketcher.Constraint("Vertical", 9, 2, 10, 2),
    Sketcher.Constraint("Vertical", 13, 2, 14, 2),
    Sketcher.Constraint("Vertical", 17, 2, 18, 2),
    Sketcher.Constraint("Vertical", 21, 2, 22, 2),
    Sketcher.Constraint("Vertical", 25, 2, 26, 2),
    Sketcher.Constraint("Equal", 9, 13),
    Sketcher.Constraint("Equal", 11, 15),
    Sketcher.Constraint("Equal", 13, 17),
    Sketcher.Constraint("Equal", 15, 19),
    Sketcher.Constraint("Equal", 17, 21),
    Sketcher.Constraint("Equal", 19, 23),
    Sketcher.Constraint("Equal", 21, 25),
    Sketcher.Constraint("Equal", 23, 27),
    Sketcher.Constraint("Equal", 4, 28),
    Sketcher.Constraint("Equal", 0, 32),
    Sketcher.Constraint("Equal", 24, 33),
    Sketcher.Constraint("Equal", 32, 34),
    Sketcher.Constraint("Radius", 1, 9.4),
    Sketcher.Constraint("Angle", 0, Q("120 deg")),
    Sketcher.Constraint("DistanceX", 2, 2, 2, 1, 117.6),
    Sketcher.Constraint("DistanceX", -1, 1, 10, 3, 49.0),
    Sketcher.Constraint("DistanceX", 18, 3, 5, 3, 147.0),
    Sketcher.Constraint("DistanceX", 26, 3, 3, 3, 49.0),
    Sketcher.Constraint("DistanceX", 22, 3, 31, 3, 98.0),
    Sketcher.Constraint("DistanceX", -1, 1, 1, 3, 176.4),
    Sketcher.Constraint("DistanceX", -1, 1, 14, 3, 39.2),
    Sketcher.Constraint("DistanceY", -1, 1, 28, 2, 4.1),
    Sketcher.Constraint("DistanceX", 8, 2, 7, 2, 9.8),
    Sketcher.Constraint("DistanceY", 10, 3, -1, 1, 84.87049),
    Sketcher.Constraint("DistanceY", 14, 3, -1, 1, 67.896392),
    Sketcher.Constraint("DistanceY", 0, 2, -1, 1, 93.703949),
    Sketcher.Constraint("DistanceY", 3, 3, 22, 3, 67.896392),
    Sketcher.Constraint("DistanceY", 10, 3, 26, 3, 67.896392),
    Sketcher.Constraint("DistanceY", 18, 3, -1, 1, 50.922294),
])
pocket1 = body2.newObject("PartDesign::Pocket", "Pocket")
pocket1.Profile = sketch3
pocket1.Type = "ThroughAll"

# Sketch on XZ plane
sketch4 = body2.newObject("Sketcher::SketchObject", "Sketch003")
sketch4.AttachmentSupport = (doc.getObject("XZ_Plane001"), [""])
sketch4.MapMode = "FlatFace"
sketch4.AttachmentOffset = App.Placement(App.Vector(0, 0, 5), App.Rotation())
sketch4.addGeometry([
    Part.LineSegment(App.Vector(67, -107, 0), App.Vector(-1, 9, 0)),  # 0
    Part.ArcOfCircle(Part.Circle(App.Vector(0, 0, 0), App.Vector(0, 0, 1), 9), math.radians(94), math.radians(146)),  # 1
    Part.LineSegment(App.Vector(-8, 5, 0), App.Vector(60, -111, 0)),  # 2
    Part.ArcOfCircle(Part.Circle(App.Vector(59, -102, 0), App.Vector(0, 0, 1), 9), math.radians(-86), math.radians(-35)),  # 3
    Part.LineSegment(App.Vector(86, -107, 0), App.Vector(19, 9, 0)),  # 4
    Part.ArcOfCircle(Part.Circle(App.Vector(20, 0, 0), App.Vector(0, 0, 1), 9), math.radians(94), math.radians(146)),  # 5
    Part.LineSegment(App.Vector(12, 5, 0), App.Vector(79, -111, 0)),  # 6
    Part.ArcOfCircle(Part.Circle(App.Vector(78, -102, 0), App.Vector(0, 0, 1), 9), math.radians(-86), math.radians(-35)),  # 7
    Part.LineSegment(App.Vector(106, -107, 0), App.Vector(39, 9, 0)),  # 8
    Part.ArcOfCircle(Part.Circle(App.Vector(39, 0, 0), App.Vector(0, 0, 1), 9), math.radians(94), math.radians(146)),  # 9
    Part.LineSegment(App.Vector(31, 5, 0), App.Vector(99, -111, 0)),  # 10
    Part.ArcOfCircle(Part.Circle(App.Vector(98, -102, 0), App.Vector(0, 0, 1), 9), math.radians(-86), math.radians(-35)),  # 11
    Part.LineSegment(App.Vector(125, -107, 0), App.Vector(58, 9, 0)),  # 12
    Part.ArcOfCircle(Part.Circle(App.Vector(59, 0, 0), App.Vector(0, 0, 1), 9), math.radians(94), math.radians(146)),  # 13
    Part.LineSegment(App.Vector(51, 5, 0), App.Vector(118, -111, 0)),  # 14
    Part.ArcOfCircle(Part.Circle(App.Vector(118, -102, 0), App.Vector(0, 0, 1), 9), math.radians(-86), math.radians(-35)),  # 15
    Part.LineSegment(App.Vector(145, -107, 0), App.Vector(78, 9, 0)),  # 16
    Part.ArcOfCircle(Part.Circle(App.Vector(78, 0, 0), App.Vector(0, 0, 1), 9), math.radians(94), math.radians(146)),  # 17
    Part.LineSegment(App.Vector(71, 5, 0), App.Vector(138, -111, 0)),  # 18
    Part.ArcOfCircle(Part.Circle(App.Vector(137, -102, 0), App.Vector(0, 0, 1), 9), math.radians(-86), math.radians(-35)),  # 19
    Part.LineSegment(App.Vector(165, -107, 0), App.Vector(97, 9, 0)),  # 20
    Part.ArcOfCircle(Part.Circle(App.Vector(98, 0, 0), App.Vector(0, 0, 1), 9), math.radians(94), math.radians(146)),  # 21
    Part.LineSegment(App.Vector(90, 5, 0), App.Vector(158, -111, 0)),  # 22
    Part.ArcOfCircle(Part.Circle(App.Vector(157, -102, 0), App.Vector(0, 0, 1), 9), math.radians(-86), math.radians(-35)),  # 23
    Part.LineSegment(App.Vector(184, -107, 0), App.Vector(117, 9, 0)),  # 24
    Part.ArcOfCircle(Part.Circle(App.Vector(118, 0, 0), App.Vector(0, 0, 1), 9), math.radians(94), math.radians(146)),  # 25
    Part.LineSegment(App.Vector(110, 5, 0), App.Vector(177, -111, 0)),  # 26
    Part.ArcOfCircle(Part.Circle(App.Vector(176, -102, 0), App.Vector(0, 0, 1), 9), math.radians(-86), math.radians(-35)),  # 27
], False)
sketch4.addConstraint([
    Sketcher.Constraint("Coincident", 0, 2, 1, 1),
    Sketcher.Constraint("Coincident", 1, 2, 2, 1),
    Sketcher.Constraint("Coincident", 2, 2, 3, 1),
    Sketcher.Constraint("Coincident", 3, 2, 0, 1),
    Sketcher.Constraint("Coincident", 4, 2, 5, 1),
    Sketcher.Constraint("Coincident", 5, 2, 6, 1),
    Sketcher.Constraint("Coincident", 6, 2, 7, 1),
    Sketcher.Constraint("Coincident", 7, 2, 4, 1),
    Sketcher.Constraint("Coincident", 8, 2, 9, 1),
    Sketcher.Constraint("Coincident", 9, 2, 10, 1),
    Sketcher.Constraint("Coincident", 10, 2, 11, 1),
    Sketcher.Constraint("Coincident", 11, 2, 8, 1),
    Sketcher.Constraint("Coincident", 12, 2, 13, 1),
    Sketcher.Constraint("Coincident", 13, 2, 14, 1),
    Sketcher.Constraint("Coincident", 14, 2, 15, 1),
    Sketcher.Constraint("Coincident", 15, 2, 12, 1),
    Sketcher.Constraint("Coincident", 16, 2, 17, 1),
    Sketcher.Constraint("Coincident", 17, 2, 18, 1),
    Sketcher.Constraint("Coincident", 18, 2, 19, 1),
    Sketcher.Constraint("Coincident", 19, 2, 16, 1),
    Sketcher.Constraint("Coincident", 20, 2, 21, 1),
    Sketcher.Constraint("Coincident", 21, 2, 22, 1),
    Sketcher.Constraint("Coincident", 22, 2, 23, 1),
    Sketcher.Constraint("Coincident", 23, 2, 20, 1),
    Sketcher.Constraint("Coincident", 24, 2, 25, 1),
    Sketcher.Constraint("Coincident", 25, 2, 26, 1),
    Sketcher.Constraint("Coincident", 26, 2, 27, 1),
    Sketcher.Constraint("Coincident", 27, 2, 24, 1),
    Sketcher.Constraint("Coincident", 1, 3, -1, 1),
    Sketcher.Constraint("Equal", 1, 3),
    Sketcher.Constraint("Equal", 3, 5),
    Sketcher.Constraint("Equal", 5, 7),
    Sketcher.Constraint("Equal", 7, 9),
    Sketcher.Constraint("Equal", 9, 11),
    Sketcher.Constraint("Equal", 11, 13),
    Sketcher.Constraint("Equal", 13, 15),
    Sketcher.Constraint("Equal", 15, 17),
    Sketcher.Constraint("Equal", 17, 19),
    Sketcher.Constraint("Equal", 19, 21),
    Sketcher.Constraint("Equal", 21, 23),
    Sketcher.Constraint("Equal", 23, 25),
    Sketcher.Constraint("Equal", 25, 27),
    Sketcher.Constraint("PointOnObject", 5, 3, -1),
    Sketcher.Constraint("PointOnObject", 9, 3, -1),
    Sketcher.Constraint("PointOnObject", 13, 3, -1),
    Sketcher.Constraint("PointOnObject", 17, 3, -1),
    Sketcher.Constraint("PointOnObject", 21, 3, -1),
    Sketcher.Constraint("PointOnObject", 25, 3, -1),
    Sketcher.Constraint("Parallel", 0, 2),
    Sketcher.Constraint("Parallel", 2, 4),
    Sketcher.Constraint("Parallel", 4, 6),
    Sketcher.Constraint("Parallel", 6, 8),
    Sketcher.Constraint("Parallel", 8, 10),
    Sketcher.Constraint("Parallel", 10, 12),
    Sketcher.Constraint("Parallel", 12, 14),
    Sketcher.Constraint("Parallel", 14, 16),
    Sketcher.Constraint("Parallel", 16, 18),
    Sketcher.Constraint("Parallel", 18, 20),
    Sketcher.Constraint("Parallel", 20, 22),
    Sketcher.Constraint("Parallel", 22, 24),
    Sketcher.Constraint("Parallel", 24, 26),
    Sketcher.Constraint("Horizontal", 3, 3, 7, 3),
    Sketcher.Constraint("Horizontal", 7, 3, 11, 3),
    Sketcher.Constraint("Horizontal", 11, 3, 15, 3),
    Sketcher.Constraint("Horizontal", 15, 3, 19, 3),
    Sketcher.Constraint("Horizontal", 19, 3, 23, 3),
    Sketcher.Constraint("Horizontal", 23, 3, 27, 3),
    Sketcher.Constraint("Horizontal", 0, 2, 4, 2),
    Sketcher.Constraint("Horizontal", 1, 2, 5, 2),
    Sketcher.Constraint("Horizontal", 2, 2, 6, 2),
    Sketcher.Constraint("Horizontal", 4, 2, 8, 2),
    Sketcher.Constraint("Horizontal", 5, 2, 9, 2),
    Sketcher.Constraint("Horizontal", 6, 2, 10, 2),
    Sketcher.Constraint("Horizontal", 8, 2, 12, 2),
    Sketcher.Constraint("Horizontal", 9, 2, 13, 2),
    Sketcher.Constraint("Horizontal", 10, 2, 14, 2),
    Sketcher.Constraint("Horizontal", 12, 2, 16, 2),
    Sketcher.Constraint("Horizontal", 13, 2, 17, 2),
    Sketcher.Constraint("Horizontal", 14, 2, 18, 2),
    Sketcher.Constraint("Horizontal", 16, 2, 20, 2),
    Sketcher.Constraint("Horizontal", 17, 2, 21, 2),
    Sketcher.Constraint("Horizontal", 18, 2, 22, 2),
    Sketcher.Constraint("Horizontal", 20, 2, 24, 2),
    Sketcher.Constraint("Horizontal", 21, 2, 25, 2),
    Sketcher.Constraint("Horizontal", 22, 2, 26, 2),
    Sketcher.Constraint("Radius", 1, 9.4),
    Sketcher.Constraint("Angle", 0, Q("120 deg")),
    Sketcher.Constraint("DistanceX", -1, 1, 21, 3, 98.0),
    Sketcher.Constraint("DistanceX", 5, 3, 25, 3, 98.0),
    Sketcher.Constraint("DistanceX", -1, 1, 5, 3, 19.6),
    Sketcher.Constraint("DistanceX", -1, 1, 9, 3, 39.2),
    Sketcher.Constraint("DistanceX", -1, 1, 13, 3, 58.8),
    Sketcher.Constraint("DistanceX", -1, 1, 17, 3, 78.4),
    Sketcher.Constraint("DistanceY", 1, 2, 0, 2, 4.1),
    Sketcher.Constraint("DistanceY", 2, 2, 3, 2, 4.05),
    Sketcher.Constraint("Distance", 2, 134.565191),
    Sketcher.Constraint("DistanceX", -1, 1, 3, 3, 58.890012),
])
pocket2 = body2.newObject("PartDesign::Pocket", "Pocket001")
pocket2.Profile = sketch4
pocket2.Length = 2

doc.recompute()
